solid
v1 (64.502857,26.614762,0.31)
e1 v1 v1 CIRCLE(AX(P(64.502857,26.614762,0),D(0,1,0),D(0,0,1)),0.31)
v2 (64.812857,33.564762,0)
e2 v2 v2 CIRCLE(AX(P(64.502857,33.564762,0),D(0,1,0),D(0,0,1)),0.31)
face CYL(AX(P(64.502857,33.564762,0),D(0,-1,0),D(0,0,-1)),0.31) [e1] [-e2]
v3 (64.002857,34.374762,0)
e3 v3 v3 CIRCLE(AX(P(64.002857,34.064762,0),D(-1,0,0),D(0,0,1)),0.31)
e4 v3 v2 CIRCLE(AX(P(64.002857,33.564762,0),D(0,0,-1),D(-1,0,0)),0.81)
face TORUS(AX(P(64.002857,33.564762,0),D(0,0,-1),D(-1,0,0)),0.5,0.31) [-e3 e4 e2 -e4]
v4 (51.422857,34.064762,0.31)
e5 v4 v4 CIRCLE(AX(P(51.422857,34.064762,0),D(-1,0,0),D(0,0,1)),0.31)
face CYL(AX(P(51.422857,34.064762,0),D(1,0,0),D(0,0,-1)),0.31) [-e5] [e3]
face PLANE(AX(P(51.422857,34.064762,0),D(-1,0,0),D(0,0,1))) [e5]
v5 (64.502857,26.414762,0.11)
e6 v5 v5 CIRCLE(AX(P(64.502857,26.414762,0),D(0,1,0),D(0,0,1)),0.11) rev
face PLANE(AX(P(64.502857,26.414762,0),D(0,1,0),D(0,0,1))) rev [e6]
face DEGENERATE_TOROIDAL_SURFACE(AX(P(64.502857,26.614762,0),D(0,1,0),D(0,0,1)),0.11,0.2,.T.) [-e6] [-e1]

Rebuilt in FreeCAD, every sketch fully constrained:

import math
import FreeCAD as App
import Part
import Sketcher
from FreeCAD import Vector


def edges_at(feature, points):
    """Names of the edges that pass closest to the given points."""
    edges = feature.Shape.Edges
    near = lambda p: min(range(len(edges)), key=lambda i: edges[i].distToShape(Part.Vertex(*p))[0])
    return sorted({f"Edge{near(p) + 1}" for p in points})

doc = App.newDocument("Part")
params = doc.addObject("Spreadsheet::Sheet", "Params")
for row, (alias, value) in enumerate([
    ("sketch1_diameter", "0.62 mm"),
    ("sketch2_radius", "0.5 mm"),
    ("sketch2_width", "12.58 mm"),
    ("sketch2_height", "7.15 mm"),
    ("fillet_radius", "0.2 mm"),
], start=1):
    params.set(f"A{row}", alias)
    params.set(f"B{row}", "=" + value)
    params.setAlias(f"B{row}", alias)

body = doc.addObject("PartDesign::Body", "Body")

# Sketch on YZ plane
sketch1 = body.newObject("Sketcher::SketchObject", "Sketch")
sketch1.AttachmentSupport = (doc.getObject("YZ_Plane"), [""])
sketch1.MapMode = "FlatFace"
sketch1.AttachmentOffset = App.Placement(Vector(0, 0, 51.422857), App.Rotation())
sketch1.addGeometry(Part.Circle(Vector(34.06, 0, 0), Vector(0, 0, 1), 0.31), False)
sketch1.addConstraint(Sketcher.Constraint("PointOnObject", 0, 3, -1))
sketch1.addConstraint(Sketcher.Constraint("Diameter", 0, 0.62))
sketch1.addConstraint(Sketcher.Constraint("DistanceX", -1, 1, 0, 3, 34.064762))
sketch1.setExpression("Constraints[1]", "Params.sketch1_diameter")

# Sketch on XY plane
sketch2 = body.newObject("Sketcher::SketchObject", "Sketch001")
sketch2.AttachmentSupport = (doc.getObject("XY_Plane"), [""])
sketch2.MapMode = "FlatFace"
sketch2.addGeometry(Part.LineSegment(Vector(51.4, 34.1, 0), Vector(64, 34.1, 0)), False)
sketch2.addGeometry(Part.ArcOfCircle(Part.Circle(Vector(64, 33.6, 0), Vector(0, 0, 1), 0.5), math.radians(0), math.radians(90)), False)
sketch2.addGeometry(Part.LineSegment(Vector(64.5, 33.6, 0), Vector(64.5, 26.4, 0)), False)
sketch2.addConstraint(Sketcher.Constraint("Tangent", 0, 2, 1, 2))
sketch2.addConstraint(Sketcher.Constraint("Tangent", 1, 1, 2, 1))
sketch2.addConstraint(Sketcher.Constraint("Horizontal", 0))
sketch2.addConstraint(Sketcher.Constraint("Vertical", 2))
sketch2.addConstraint(Sketcher.Constraint("Radius", 1, 0.5))
sketch2.addConstraint(Sketcher.Constraint("DistanceX", 0, 1, 0, 2, 12.58))
sketch2.addConstraint(Sketcher.Constraint("DistanceY", 2, 2, 2, 1, 7.15))
sketch2.addConstraint(Sketcher.Constraint("DistanceY", -1, 1, 1, 3, 33.564762))
sketch2.addConstraint(Sketcher.Constraint("DistanceX", -1, 1, 1, 3, 64.002857))
sketch2.setExpression("Constraints[4]", "Params.sketch2_radius")
sketch2.setExpression("Constraints[5]", "Params.sketch2_width")
sketch2.setExpression("Constraints[6]", "Params.sketch2_height")
doc.recompute()

additivepipe = body.newObject("PartDesign::AdditivePipe", "AdditivePipe")
additivepipe.Profile = sketch1
additivepipe.Spine = (sketch2, ["Edge1", "Edge2", "Edge3"])
doc.recompute()

fillet = body.newObject("PartDesign::Fillet", "Fillet")
fillet.Base = (additivepipe, edges_at(additivepipe, [(64.503, 26.415, -0.31)]))
fillet.setExpression("Radius", "Params.fillet_radius")

doc.recompute()
